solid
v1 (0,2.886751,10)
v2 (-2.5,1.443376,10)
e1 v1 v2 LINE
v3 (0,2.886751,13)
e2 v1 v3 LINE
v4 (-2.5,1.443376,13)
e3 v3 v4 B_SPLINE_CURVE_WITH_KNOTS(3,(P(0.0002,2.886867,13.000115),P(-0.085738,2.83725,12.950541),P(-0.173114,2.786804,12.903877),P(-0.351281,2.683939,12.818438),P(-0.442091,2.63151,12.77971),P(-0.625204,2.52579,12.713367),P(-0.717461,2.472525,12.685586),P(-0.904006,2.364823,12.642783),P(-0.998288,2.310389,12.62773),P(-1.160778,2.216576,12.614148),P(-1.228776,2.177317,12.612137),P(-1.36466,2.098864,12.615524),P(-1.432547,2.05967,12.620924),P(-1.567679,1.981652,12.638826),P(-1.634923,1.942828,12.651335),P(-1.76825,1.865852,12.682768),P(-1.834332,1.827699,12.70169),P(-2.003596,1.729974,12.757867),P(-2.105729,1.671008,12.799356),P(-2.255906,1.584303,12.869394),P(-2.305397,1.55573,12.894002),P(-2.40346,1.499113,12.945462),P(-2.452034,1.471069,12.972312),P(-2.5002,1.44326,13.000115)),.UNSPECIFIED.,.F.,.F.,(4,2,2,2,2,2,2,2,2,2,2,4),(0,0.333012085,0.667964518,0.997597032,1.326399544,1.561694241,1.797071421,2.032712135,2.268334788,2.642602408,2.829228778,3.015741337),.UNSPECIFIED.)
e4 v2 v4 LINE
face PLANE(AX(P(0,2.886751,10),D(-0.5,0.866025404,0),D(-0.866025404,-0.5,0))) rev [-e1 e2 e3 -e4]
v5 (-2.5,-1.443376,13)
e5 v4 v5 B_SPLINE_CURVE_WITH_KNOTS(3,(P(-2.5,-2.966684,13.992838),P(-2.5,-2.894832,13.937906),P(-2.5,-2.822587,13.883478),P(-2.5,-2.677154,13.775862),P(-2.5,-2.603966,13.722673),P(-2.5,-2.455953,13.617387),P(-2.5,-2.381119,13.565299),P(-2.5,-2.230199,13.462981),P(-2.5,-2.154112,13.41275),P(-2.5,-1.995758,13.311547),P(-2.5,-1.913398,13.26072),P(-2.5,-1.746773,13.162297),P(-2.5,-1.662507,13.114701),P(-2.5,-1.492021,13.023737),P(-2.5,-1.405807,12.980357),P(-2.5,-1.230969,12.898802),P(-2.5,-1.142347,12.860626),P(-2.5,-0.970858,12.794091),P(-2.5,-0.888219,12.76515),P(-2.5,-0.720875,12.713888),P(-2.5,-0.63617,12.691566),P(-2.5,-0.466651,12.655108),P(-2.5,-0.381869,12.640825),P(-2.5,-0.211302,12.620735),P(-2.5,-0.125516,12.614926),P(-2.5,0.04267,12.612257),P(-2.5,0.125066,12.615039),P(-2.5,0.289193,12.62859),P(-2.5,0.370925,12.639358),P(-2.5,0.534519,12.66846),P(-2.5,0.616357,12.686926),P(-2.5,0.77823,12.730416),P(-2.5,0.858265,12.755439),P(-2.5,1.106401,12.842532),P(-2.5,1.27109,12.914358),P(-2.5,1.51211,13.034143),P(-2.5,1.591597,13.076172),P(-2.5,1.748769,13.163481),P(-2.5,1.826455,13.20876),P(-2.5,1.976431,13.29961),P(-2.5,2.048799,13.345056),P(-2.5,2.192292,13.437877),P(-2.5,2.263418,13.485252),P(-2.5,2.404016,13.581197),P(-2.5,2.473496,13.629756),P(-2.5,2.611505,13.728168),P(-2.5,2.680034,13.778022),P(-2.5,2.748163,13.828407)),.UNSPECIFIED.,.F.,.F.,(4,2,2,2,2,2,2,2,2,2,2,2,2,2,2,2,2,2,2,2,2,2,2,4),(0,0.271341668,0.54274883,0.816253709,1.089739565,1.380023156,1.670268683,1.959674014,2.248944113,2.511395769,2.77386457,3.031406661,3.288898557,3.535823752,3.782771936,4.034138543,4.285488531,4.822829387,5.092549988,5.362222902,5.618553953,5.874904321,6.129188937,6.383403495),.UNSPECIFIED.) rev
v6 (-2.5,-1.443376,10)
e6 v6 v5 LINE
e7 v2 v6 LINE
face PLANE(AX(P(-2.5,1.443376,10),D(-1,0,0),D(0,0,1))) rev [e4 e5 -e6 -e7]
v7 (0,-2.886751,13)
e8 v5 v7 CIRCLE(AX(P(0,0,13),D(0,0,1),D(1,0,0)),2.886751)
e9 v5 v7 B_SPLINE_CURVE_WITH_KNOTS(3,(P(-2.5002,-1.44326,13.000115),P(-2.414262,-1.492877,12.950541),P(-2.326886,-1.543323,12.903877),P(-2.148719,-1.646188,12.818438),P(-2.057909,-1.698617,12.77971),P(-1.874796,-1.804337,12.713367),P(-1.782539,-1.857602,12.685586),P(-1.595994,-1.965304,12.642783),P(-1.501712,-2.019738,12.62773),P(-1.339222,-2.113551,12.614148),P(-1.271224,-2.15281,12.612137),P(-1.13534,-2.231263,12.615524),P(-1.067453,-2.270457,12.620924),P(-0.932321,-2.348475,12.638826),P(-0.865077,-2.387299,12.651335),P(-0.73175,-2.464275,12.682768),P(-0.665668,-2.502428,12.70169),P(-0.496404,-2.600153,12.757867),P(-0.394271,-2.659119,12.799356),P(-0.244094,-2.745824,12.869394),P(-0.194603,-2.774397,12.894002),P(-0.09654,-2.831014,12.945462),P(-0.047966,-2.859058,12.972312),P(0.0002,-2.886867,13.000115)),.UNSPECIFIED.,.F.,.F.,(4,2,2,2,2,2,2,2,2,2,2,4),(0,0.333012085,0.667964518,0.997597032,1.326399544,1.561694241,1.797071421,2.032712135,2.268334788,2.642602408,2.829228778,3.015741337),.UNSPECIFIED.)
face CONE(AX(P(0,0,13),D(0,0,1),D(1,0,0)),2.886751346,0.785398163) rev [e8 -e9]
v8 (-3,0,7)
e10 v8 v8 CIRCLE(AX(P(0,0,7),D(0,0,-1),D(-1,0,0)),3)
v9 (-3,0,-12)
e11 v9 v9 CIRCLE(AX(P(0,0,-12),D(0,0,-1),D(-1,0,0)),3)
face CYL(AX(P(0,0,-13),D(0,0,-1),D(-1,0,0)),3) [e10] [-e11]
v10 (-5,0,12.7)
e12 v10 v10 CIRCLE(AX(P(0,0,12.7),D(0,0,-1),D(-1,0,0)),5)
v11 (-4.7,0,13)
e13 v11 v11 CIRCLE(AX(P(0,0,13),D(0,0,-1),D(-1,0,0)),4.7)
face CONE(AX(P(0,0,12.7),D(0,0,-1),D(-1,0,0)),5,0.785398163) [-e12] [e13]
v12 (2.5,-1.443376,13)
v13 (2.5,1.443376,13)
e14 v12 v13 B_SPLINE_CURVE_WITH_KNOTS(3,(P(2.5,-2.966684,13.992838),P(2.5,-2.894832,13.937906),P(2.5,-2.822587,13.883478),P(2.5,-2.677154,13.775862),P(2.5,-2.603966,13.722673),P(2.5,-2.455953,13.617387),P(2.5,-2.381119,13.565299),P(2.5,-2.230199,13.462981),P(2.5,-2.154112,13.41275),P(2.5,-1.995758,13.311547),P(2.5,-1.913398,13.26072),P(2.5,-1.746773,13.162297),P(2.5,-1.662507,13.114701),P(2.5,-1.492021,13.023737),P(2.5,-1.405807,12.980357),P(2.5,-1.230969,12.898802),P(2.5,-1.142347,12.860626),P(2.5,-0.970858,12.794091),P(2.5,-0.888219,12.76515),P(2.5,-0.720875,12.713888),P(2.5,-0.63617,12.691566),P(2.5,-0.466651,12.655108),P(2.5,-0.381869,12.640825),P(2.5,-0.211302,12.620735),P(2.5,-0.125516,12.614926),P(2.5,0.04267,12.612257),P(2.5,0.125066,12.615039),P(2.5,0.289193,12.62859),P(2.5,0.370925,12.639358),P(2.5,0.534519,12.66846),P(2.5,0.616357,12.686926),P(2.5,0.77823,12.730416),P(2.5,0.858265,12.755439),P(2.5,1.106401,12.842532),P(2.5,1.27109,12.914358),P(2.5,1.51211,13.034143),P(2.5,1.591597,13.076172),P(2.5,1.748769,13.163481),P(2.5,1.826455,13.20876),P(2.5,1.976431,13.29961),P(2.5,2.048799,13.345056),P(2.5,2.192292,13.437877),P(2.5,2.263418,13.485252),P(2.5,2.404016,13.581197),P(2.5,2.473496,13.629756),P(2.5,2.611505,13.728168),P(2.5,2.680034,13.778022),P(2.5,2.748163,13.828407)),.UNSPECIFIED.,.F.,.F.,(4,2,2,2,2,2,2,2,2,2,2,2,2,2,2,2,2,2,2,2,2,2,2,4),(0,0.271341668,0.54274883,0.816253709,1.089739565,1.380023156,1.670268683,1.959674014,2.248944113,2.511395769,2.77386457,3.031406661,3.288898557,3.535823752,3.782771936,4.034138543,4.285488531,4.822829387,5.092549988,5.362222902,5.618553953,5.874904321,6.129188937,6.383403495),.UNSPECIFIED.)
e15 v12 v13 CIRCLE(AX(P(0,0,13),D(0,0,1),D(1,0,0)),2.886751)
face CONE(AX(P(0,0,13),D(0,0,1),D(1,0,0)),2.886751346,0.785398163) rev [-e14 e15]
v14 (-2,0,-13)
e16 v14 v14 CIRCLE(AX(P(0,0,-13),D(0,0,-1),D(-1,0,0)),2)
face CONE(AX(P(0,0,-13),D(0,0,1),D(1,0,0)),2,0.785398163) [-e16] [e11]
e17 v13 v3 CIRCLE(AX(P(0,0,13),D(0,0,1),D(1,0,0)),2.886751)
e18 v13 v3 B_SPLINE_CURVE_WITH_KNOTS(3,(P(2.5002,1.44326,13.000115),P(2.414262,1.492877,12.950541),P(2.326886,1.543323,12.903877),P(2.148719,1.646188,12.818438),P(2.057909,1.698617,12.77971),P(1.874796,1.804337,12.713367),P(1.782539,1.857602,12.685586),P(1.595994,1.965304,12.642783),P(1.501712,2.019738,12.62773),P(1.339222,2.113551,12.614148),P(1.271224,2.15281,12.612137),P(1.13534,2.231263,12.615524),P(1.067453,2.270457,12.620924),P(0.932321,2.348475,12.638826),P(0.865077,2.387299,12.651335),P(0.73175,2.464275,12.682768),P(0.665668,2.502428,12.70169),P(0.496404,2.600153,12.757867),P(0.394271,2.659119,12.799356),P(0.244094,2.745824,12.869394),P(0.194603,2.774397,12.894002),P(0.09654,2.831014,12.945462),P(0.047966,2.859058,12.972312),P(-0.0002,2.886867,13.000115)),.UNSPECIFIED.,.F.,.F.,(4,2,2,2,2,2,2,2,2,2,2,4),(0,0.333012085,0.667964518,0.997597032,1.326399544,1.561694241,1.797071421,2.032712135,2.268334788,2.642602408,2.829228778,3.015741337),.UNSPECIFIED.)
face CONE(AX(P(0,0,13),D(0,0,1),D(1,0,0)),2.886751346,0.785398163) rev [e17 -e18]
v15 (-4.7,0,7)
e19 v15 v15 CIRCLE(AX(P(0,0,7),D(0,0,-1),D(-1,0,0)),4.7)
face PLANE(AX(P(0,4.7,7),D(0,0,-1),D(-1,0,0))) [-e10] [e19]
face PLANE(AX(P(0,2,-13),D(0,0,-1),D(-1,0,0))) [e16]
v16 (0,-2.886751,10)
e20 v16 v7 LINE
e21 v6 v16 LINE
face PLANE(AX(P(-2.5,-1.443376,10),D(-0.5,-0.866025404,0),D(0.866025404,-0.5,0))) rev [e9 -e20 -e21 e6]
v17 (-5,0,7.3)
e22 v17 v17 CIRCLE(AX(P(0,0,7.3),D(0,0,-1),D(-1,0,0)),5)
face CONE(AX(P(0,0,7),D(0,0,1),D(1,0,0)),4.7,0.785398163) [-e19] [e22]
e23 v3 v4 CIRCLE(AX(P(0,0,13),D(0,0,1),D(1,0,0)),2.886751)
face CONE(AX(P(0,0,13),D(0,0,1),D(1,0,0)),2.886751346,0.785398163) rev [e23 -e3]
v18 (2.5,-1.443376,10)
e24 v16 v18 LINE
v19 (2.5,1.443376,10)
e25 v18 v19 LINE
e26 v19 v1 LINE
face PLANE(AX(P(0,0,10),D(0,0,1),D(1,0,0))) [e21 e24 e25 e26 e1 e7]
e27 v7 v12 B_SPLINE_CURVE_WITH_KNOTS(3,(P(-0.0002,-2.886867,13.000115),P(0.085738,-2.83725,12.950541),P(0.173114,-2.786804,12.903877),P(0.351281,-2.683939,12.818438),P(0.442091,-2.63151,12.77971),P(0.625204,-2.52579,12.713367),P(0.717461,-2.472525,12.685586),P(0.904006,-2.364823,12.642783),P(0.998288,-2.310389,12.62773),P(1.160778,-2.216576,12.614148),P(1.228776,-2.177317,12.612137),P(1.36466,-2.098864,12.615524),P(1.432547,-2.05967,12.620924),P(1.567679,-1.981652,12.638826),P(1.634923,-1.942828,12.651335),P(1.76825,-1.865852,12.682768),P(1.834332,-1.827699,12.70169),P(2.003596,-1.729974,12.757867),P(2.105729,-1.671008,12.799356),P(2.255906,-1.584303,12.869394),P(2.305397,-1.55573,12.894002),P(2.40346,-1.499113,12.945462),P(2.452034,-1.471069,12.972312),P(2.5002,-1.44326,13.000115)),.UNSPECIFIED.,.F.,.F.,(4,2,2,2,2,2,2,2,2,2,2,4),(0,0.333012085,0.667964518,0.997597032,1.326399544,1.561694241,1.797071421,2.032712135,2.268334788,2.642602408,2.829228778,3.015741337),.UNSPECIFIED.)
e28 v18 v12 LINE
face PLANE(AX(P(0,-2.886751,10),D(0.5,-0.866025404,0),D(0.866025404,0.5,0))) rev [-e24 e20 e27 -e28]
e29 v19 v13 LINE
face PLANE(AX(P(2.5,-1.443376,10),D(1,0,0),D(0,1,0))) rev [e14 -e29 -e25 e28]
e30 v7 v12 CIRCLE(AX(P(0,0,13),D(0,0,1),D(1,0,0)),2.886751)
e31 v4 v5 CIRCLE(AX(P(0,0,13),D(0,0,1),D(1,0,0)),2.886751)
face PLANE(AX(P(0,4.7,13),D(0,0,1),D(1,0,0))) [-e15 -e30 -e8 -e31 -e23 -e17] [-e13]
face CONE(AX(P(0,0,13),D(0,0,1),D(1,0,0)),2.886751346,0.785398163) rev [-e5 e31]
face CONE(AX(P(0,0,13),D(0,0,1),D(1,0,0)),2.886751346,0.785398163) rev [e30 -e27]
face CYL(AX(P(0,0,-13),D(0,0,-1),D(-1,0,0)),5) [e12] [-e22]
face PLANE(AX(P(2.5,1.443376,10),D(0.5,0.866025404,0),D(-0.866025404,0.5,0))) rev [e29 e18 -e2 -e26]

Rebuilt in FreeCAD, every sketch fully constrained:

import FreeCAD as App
import Part
import Sketcher
Q = App.Units.Quantity

doc = App.newDocument("Part")
body = doc.addObject("PartDesign::Body", "Body")

# Sketch on YZ plane
sketch1 = doc.addObject("Sketcher::SketchObject", "Sketch")
body.addObject(sketch1)
sketch1.AttachmentSupport = (doc.YZ_Plane, [""])
sketch1.MapMode = "FlatFace"
sketch1.addGeometry([
    Part.LineSegment(App.Vector(5, 7.3, 0), App.Vector(5, 12.7, 0)),  # 0
    Part.LineSegment(App.Vector(5, 12.7, 0), App.Vector(4.7, 13, 0)),  # 1
    Part.LineSegment(App.Vector(4.7, 13, 0), App.Vector(0, 13, 0)),  # 2
    Part.LineSegment(App.Vector(0, 13, 0), App.Vector(0, -13, 0)),  # 3
    Part.LineSegment(App.Vector(0, -13, 0), App.Vector(2, -13, 0)),  # 4
    Part.LineSegment(App.Vector(2, -13, 0), App.Vector(3, -12, 0)),  # 5
    Part.LineSegment(App.Vector(3, -12, 0), App.Vector(3, 7, 0)),  # 6
    Part.LineSegment(App.Vector(3, 7, 0), App.Vector(4.7, 7, 0)),  # 7
    Part.LineSegment(App.Vector(4.7, 7, 0), App.Vector(5, 7.3, 0)),  # 8
], False)
sketch1.addConstraint([
    Sketcher.Constraint("Coincident", 0, 2, 1, 1),
    Sketcher.Constraint("Coincident", 1, 2, 2, 1),
    Sketcher.Constraint("Coincident", 2, 2, 3, 1),
    Sketcher.Constraint("Coincident", 3, 2, 4, 1),
    Sketcher.Constraint("Coincident", 4, 2, 5, 1),
    Sketcher.Constraint("Coincident", 5, 2, 6, 1),
    Sketcher.Constraint("Coincident", 6, 2, 7, 1),
    Sketcher.Constraint("Coincident", 7, 2, 8, 1),
    Sketcher.Constraint("Coincident", 8, 2, 0, 1),
    Sketcher.Constraint("Vertical", 0),
    Sketcher.Constraint("Horizontal", 2),
    Sketcher.Constraint("Vertical", 3),
    Sketcher.Constraint("Horizontal", 4),
    Sketcher.Constraint("Vertical", 6),
    Sketcher.Constraint("Horizontal", 7),
    Sketcher.Constraint("Symmetric", 2, 2, 3, 2, -1, 1),
    Sketcher.Constraint("Perpendicular", 1, 5),
    Sketcher.Constraint("Parallel", 5, 8),
    Sketcher.Constraint("Vertical", 1, 2, 7, 2),
    Sketcher.Constraint("Equal", 1, 8),
    Sketcher.Constraint("DistanceX", 4, 1, 4, 2, 2.0),
    Sketcher.Constraint("DistanceY", 3, 2, 3, 1, 26.0),
    Sketcher.Constraint("DistanceY", 6, 1, 6, 2, 19.0),
    Sketcher.Constraint("DistanceX", 2, 2, 2, 1, 4.7),
    Sketcher.Constraint("DistanceX", 7, 1, 7, 2, 1.7),
    Sketcher.Constraint("DistanceY", 0, 1, 0, 2, 5.4),
])
revolution = doc.addObject("PartDesign::Revolution", "Revolution")
body.addObject(revolution)
revolution.Profile = sketch1
revolution.ReferenceAxis = (sketch1, ["V_Axis"])
revolution.Angle = 360

# Sketch on XY plane
sketch2 = doc.addObject("Sketcher::SketchObject", "Sketch001")
body.addObject(sketch2)
sketch2.AttachmentSupport = (doc.XY_Plane, [""])
sketch2.MapMode = "FlatFace"
sketch2.AttachmentOffset = App.Placement(App.Vector(0, 0, 10), App.Rotation())
sketch2.addGeometry([
    Part.LineSegment(App.Vector(0, 2.9, 0), App.Vector(-2.5, 1.4, 0)),  # 0
    Part.LineSegment(App.Vector(-2.5, 1.4, 0), App.Vector(-2.5, -1.4, 0)),  # 1
    Part.LineSegment(App.Vector(-2.5, -1.4, 0), App.Vector(0, -2.9, 0)),  # 2
    Part.LineSegment(App.Vector(0, -2.9, 0), App.Vector(2.5, -1.4, 0)),  # 3
    Part.LineSegment(App.Vector(2.5, -1.4, 0), App.Vector(2.5, 1.4, 0)),  # 4
    Part.LineSegment(App.Vector(2.5, 1.4, 0), App.Vector(0, 2.9, 0)),  # 5
], False)
sketch2.addConstraint([
    Sketcher.Constraint("Coincident", 0, 2, 1, 1),
    Sketcher.Constraint("Coincident", 1, 2, 2, 1),
    Sketcher.Constraint("Coincident", 2, 2, 3, 1),
    Sketcher.Constraint("Coincident", 3, 2, 4, 1),
    Sketcher.Constraint("Coincident", 4, 2, 5, 1),
    Sketcher.Constraint("Coincident", 5, 2, 0, 1),
    Sketcher.Constraint("Vertical", 1),
    Sketcher.Constraint("Vertical", 4),
    Sketcher.Constraint("Symmetric", 0, 2, 3, 2, -1, 1),
    Sketcher.Constraint("Symmetric", 2, 2, 5, 2, -1, 1),
    Sketcher.Constraint("PointOnObject", 2, 2, -2),
    Sketcher.Constraint("Parallel", 2, 5),
    Sketcher.Constraint("Horizontal", 1, 2, 3, 2),
    Sketcher.Constraint("Angle", 0, Q("-150 deg")),
    Sketcher.Constraint("DistanceX", 1, 2, 3, 2, 5.0),
    Sketcher.Constraint("DistanceY", 1, 2, 1, 1, 2.886751),
])
pocket1 = doc.addObject("PartDesign::Pocket", "Pocket")
body.addObject(pocket1)
pocket1.Profile = sketch2
pocket1.Length = 3
pocket1.Reversed = True

# Sketch on XY plane
sketch3 = doc.addObject("Sketcher::SketchObject", "Sketch002")
body.addObject(sketch3)
sketch3.AttachmentSupport = (doc.XY_Plane, [""])
sketch3.MapMode = "FlatFace"
sketch3.AttachmentOffset = App.Placement(App.Vector(0, 0, 13), App.Rotation())
sketch3.addGeometry(Part.Circle(App.Vector(0, 0, 0), App.Vector(0, 0, 1), 2.9), False)
sketch3.addConstraint([
    Sketcher.Constraint("Coincident", 0, 3, -1, 1),
    Sketcher.Constraint("Diameter", 0, 5.773503),
])
pocket2 = doc.addObject("PartDesign::Pocket", "Pocket001")
body.addObject(pocket2)
pocket2.Profile = sketch3
pocket2.Length = 0.5
pocket2.TaperAngle = -45

doc.recompute()
